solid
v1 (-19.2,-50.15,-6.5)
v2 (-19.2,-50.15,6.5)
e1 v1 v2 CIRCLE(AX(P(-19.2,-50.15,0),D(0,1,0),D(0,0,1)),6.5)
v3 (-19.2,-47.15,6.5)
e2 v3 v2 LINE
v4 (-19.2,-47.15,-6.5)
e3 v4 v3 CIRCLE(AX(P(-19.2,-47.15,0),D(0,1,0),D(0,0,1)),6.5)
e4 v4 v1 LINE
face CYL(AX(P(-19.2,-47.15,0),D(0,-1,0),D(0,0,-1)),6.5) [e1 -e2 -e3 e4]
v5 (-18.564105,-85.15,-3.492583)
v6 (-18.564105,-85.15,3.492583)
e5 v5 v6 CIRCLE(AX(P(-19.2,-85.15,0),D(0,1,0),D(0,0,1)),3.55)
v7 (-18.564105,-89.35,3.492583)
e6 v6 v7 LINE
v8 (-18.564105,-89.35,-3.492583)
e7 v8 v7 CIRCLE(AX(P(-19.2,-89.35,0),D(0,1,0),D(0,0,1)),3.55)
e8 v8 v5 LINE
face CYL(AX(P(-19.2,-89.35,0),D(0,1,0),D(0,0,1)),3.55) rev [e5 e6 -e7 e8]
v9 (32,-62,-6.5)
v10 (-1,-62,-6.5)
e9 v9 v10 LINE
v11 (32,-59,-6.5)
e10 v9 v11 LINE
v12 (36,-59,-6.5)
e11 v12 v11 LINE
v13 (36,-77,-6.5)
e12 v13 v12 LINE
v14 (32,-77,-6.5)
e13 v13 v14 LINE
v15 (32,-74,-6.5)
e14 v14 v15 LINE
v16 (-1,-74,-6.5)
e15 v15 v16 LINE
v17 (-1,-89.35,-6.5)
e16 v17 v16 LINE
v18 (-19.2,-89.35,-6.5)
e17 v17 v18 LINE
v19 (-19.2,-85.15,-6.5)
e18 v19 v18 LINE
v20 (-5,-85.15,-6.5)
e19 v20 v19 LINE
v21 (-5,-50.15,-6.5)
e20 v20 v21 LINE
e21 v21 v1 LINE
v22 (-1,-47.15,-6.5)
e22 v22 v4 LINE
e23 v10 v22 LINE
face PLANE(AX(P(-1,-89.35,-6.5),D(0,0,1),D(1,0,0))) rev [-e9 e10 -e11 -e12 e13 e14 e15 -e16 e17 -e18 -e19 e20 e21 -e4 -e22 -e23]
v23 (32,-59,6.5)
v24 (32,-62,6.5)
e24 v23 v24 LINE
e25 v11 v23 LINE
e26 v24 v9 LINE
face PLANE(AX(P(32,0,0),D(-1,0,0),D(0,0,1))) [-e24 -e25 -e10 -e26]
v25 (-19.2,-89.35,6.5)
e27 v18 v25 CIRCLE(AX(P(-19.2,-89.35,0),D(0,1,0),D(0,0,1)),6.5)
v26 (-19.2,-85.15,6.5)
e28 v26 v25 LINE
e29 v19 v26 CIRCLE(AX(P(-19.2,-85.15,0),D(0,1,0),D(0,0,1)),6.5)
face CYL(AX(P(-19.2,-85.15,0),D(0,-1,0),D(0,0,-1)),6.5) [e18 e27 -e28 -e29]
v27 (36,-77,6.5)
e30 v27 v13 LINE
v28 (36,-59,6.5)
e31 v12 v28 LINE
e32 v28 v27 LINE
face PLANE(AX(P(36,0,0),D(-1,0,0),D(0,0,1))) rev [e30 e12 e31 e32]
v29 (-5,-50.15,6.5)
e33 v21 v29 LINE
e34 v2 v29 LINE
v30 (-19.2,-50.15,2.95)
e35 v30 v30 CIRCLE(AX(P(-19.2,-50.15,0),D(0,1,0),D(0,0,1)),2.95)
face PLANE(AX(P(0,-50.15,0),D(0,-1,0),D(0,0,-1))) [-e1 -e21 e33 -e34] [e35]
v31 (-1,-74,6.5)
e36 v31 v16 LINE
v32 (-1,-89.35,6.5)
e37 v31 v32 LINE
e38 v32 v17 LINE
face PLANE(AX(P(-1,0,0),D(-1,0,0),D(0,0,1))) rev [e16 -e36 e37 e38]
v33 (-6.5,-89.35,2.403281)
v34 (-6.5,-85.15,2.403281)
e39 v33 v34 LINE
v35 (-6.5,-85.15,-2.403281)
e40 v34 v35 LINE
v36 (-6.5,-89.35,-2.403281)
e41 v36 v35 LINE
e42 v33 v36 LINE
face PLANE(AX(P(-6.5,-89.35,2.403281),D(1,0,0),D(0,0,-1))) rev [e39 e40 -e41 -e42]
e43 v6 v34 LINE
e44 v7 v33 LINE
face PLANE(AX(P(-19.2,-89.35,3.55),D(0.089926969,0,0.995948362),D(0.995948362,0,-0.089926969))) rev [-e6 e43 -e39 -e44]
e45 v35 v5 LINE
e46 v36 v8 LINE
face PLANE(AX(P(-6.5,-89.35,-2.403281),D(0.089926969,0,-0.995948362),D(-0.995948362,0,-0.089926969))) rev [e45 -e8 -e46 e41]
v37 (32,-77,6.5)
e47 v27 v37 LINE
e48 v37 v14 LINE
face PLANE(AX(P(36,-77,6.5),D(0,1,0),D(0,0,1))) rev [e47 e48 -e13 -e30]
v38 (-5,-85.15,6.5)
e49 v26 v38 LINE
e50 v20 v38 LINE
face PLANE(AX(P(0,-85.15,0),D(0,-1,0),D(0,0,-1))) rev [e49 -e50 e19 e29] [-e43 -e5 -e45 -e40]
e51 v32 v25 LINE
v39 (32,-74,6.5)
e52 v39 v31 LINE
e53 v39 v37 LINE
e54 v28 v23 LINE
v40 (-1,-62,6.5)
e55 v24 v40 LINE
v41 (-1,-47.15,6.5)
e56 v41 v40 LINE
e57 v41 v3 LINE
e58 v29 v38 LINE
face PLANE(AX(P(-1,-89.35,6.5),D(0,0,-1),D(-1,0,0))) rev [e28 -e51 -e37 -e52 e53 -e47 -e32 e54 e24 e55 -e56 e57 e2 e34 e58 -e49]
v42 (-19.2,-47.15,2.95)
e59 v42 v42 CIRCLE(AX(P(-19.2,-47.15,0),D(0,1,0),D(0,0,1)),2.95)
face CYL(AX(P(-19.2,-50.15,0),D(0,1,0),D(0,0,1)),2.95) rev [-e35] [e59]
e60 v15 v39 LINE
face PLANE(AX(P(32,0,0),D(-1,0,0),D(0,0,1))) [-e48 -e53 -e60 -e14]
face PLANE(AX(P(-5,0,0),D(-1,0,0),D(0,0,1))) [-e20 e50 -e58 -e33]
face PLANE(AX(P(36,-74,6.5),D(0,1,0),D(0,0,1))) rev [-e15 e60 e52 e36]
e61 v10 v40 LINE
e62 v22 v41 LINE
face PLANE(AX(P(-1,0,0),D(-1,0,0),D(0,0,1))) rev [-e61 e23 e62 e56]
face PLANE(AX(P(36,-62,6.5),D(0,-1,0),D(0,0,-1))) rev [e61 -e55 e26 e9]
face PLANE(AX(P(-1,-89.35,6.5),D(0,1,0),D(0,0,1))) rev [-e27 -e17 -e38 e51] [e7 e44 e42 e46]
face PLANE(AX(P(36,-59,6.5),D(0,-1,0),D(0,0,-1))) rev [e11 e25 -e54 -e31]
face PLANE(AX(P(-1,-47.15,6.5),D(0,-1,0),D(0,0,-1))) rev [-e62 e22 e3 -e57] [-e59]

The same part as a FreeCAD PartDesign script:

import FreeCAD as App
import Part
import Sketcher

V = App.Vector


def add_polygon(sketch, points):
    """Adds a closed chain of lines whose ends are joined by coincident constraints."""
    first, n = sketch.GeometryCount, len(points)
    for a, b in zip(points, points[1:] + points[:1]):
        sketch.addGeometry(Part.LineSegment(App.Vector(*a, 0), App.Vector(*b, 0)), False)
    for i in range(n):
        sketch.addConstraint(Sketcher.Constraint("Coincident", first + i, 2, first + (i + 1) % n, 1))

doc = App.newDocument("Part")
body = doc.addObject("PartDesign::Body", "Body")

# Sketch on YZ plane
sketch1 = doc.addObject("Sketcher::SketchObject", "Sketch")
body.addObject(sketch1)
sketch1.AttachmentSupport = (doc.YZ_Plane, [""])
sketch1.MapMode = "FlatFace"
sketch1.AttachmentOffset = App.Placement(V(0, 0, -3), App.Rotation())
add_polygon(sketch1, [(-47, 6), (-89, 6), (-89, -6), (-47, -6)])  # lines 0-3
sketch1.addConstraint(Sketcher.Constraint("Horizontal", 0))
sketch1.addConstraint(Sketcher.Constraint("Vertical", 1))
sketch1.addConstraint(Sketcher.Constraint("Horizontal", 2))
sketch1.addConstraint(Sketcher.Constraint("Vertical", 3))
sketch1.addConstraint(Sketcher.Constraint("DistanceY", 1, 2, 1, 1, 13.0))
sketch1.addConstraint(Sketcher.Constraint("DistanceX", 0, 2, 0, 1, 42.2))
sketch1.addConstraint(Sketcher.Constraint("DistanceY", -1, 1, 0, 2, 6.5))
sketch1.addConstraint(Sketcher.Constraint("DistanceX", 0, 2, -1, 1, 89.35))
pad1 = doc.addObject("PartDesign::Pad", "Pad")
body.addObject(pad1)
pad1.Profile = sketch1
pad1.Length = 4
pad1.Midplane = True
body2 = doc.addObject("PartDesign::Body", "Body001")

# Sketch on XZ plane
sketch2 = doc.addObject("Sketcher::SketchObject", "Sketch001")
body2.addObject(sketch2)
sketch2.AttachmentSupport = (doc.getObject("XZ_Plane001"), [""])
sketch2.MapMode = "FlatFace"
sketch2.AttachmentOffset = App.Placement(V(0, 0, 87.25), App.Rotation())
sketch2.addGeometry(Part.Circle(V(-19, 0, 0), V(0, 0, 1), 6), False)
sketch2.addConstraint(Sketcher.Constraint("PointOnObject", 0, 3, -1))
sketch2.addConstraint(Sketcher.Constraint("Diameter", 0, 13.0))
sketch2.addConstraint(Sketcher.Constraint("DistanceX", 0, 3, -1, 1, 19.2))
pad2 = doc.addObject("PartDesign::Pad", "Pad001")
body2.addObject(pad2)
pad2.Profile = sketch2
pad2.Length = 4.2
pad2.Midplane = True
body.AllowCompound = True
doc.recompute()

boolean = doc.addObject("PartDesign::Boolean", "Boolean")
body.addObject(boolean)
boolean.Type = "Fuse"
boolean.addObjects([body2])

# Sketch on XZ plane
sketch3 = doc.addObject("Sketcher::SketchObject", "Sketch002")
body.addObject(sketch3)
sketch3.AttachmentSupport = (doc.XZ_Plane, [""])
sketch3.MapMode = "FlatFace"
sketch3.AttachmentOffset = App.Placement(V(0, 0, 87.25), App.Rotation())
add_polygon(sketch3, [(-19, -6), (-19, 6), (-1, 6), (-1, -6)])  # lines 0-3
sketch3.addConstraint(Sketcher.Constraint("Vertical", 0))
sketch3.addConstraint(Sketcher.Constraint("Horizontal", 1))
sketch3.addConstraint(Sketcher.Constraint("Vertical", 2))
sketch3.addConstraint(Sketcher.Constraint("Horizontal", 3))
sketch3.addConstraint(Sketcher.Constraint("DistanceY", 0, 1, 0, 2, 13.0))
sketch3.addConstraint(Sketcher.Constraint("DistanceX", 1, 1, 1, 2, 18.2))
sketch3.addConstraint(Sketcher.Constraint("DistanceX", 1, 2, -1, 1, 1.0))
sketch3.addConstraint(Sketcher.Constraint("DistanceY", -1, 1, 0, 2, 6.5))
pad3 = doc.addObject("PartDesign::Pad", "Pad002")
body.addObject(pad3)
pad3.Profile = sketch3
pad3.Length = 4.2
pad3.Midplane = True

# Sketch on XZ plane
sketch4 = doc.addObject("Sketcher::SketchObject", "Sketch003")
body.addObject(sketch4)
sketch4.AttachmentSupport = (doc.XZ_Plane, [""])
sketch4.MapMode = "FlatFace"
sketch4.AttachmentOffset = App.Placement(V(0, 0, 87.25), App.Rotation())
sketch4.addGeometry(Part.Circle(V(-19.2, 0, 0), V(0, 0, 1), 3.5), False)
sketch4.addConstraint(Sketcher.Constraint("PointOnObject", 0, 3, -1))
sketch4.addConstraint(Sketcher.Constraint("Diameter", 0, 7.1))
sketch4.addConstraint(Sketcher.Constraint("DistanceX", 0, 3, -1, 1, 19.2))
pocket1 = doc.addObject("PartDesign::Pocket", "Pocket")
body.addObject(pocket1)
pocket1.Profile = sketch4
pocket1.Length = 4.2
pocket1.Midplane = True

# Sketch on XZ plane
sketch5 = doc.addObject("Sketcher::SketchObject", "Sketch004")
body.addObject(sketch5)
sketch5.AttachmentSupport = (doc.XZ_Plane, [""])
sketch5.MapMode = "FlatFace"
sketch5.AttachmentOffset = App.Placement(V(0, 0, 87.25), App.Rotation())
add_polygon(sketch5, [(-19.2, 3.5), (-6.5, 2.4), (-6.5, -2.4), (-19.2, -3.5)])  # lines 0-3
sketch5.addConstraint(Sketcher.Constraint("Vertical", 1))
sketch5.addConstraint(Sketcher.Constraint("Vertical", 3))
sketch5.addConstraint(Sketcher.Constraint("Equal", 0, 2))
sketch5.addConstraint(Sketcher.Constraint("DistanceY", 3, 1, 3, 2, 7.1))
sketch5.addConstraint(Sketcher.Constraint("DistanceX", 0, 2, -1, 1, 6.5))
sketch5.addConstraint(Sketcher.Constraint("DistanceX", 2, 2, -1, 1, 19.2))
sketch5.addConstraint(Sketcher.Constraint("DistanceY", 2, 2, -1, 1, 3.55))
sketch5.addConstraint(Sketcher.Constraint("DistanceY", 1, 2, 1, 1, 4.806563))
pocket2 = doc.addObject("PartDesign::Pocket", "Pocket001")
body.addObject(pocket2)
pocket2.Profile = sketch5
pocket2.Length = 4.2
pocket2.Midplane = True
body3 = doc.addObject("PartDesign::Body", "Body002")

# Sketch on XZ plane
sketch6 = doc.addObject("Sketcher::SketchObject", "Sketch005")
body3.addObject(sketch6)
sketch6.AttachmentSupport = (doc.getObject("XZ_Plane002"), [""])
sketch6.MapMode = "FlatFace"
sketch6.AttachmentOffset = App.Placement(V(0, 0, 48.65), App.Rotation())
sketch6.addGeometry(Part.Circle(V(-19, 0, 0), V(0, 0, 1), 6), False)
sketch6.addConstraint(Sketcher.Constraint("PointOnObject", 0, 3, -1))
sketch6.addConstraint(Sketcher.Constraint("Diameter", 0, 13.0))
sketch6.addConstraint(Sketcher.Constraint("DistanceX", 0, 3, -1, 1, 19.2))
pad4 = doc.addObject("PartDesign::Pad", "Pad003")
body3.addObject(pad4)
pad4.Profile = sketch6
pad4.Length = 3
pad4.Midplane = True
body.AllowCompound = True
doc.recompute()

boolean2 = doc.addObject("PartDesign::Boolean", "Boolean001")
body.addObject(boolean2)
boolean2.Type = "Fuse"
boolean2.addObjects([body3])

# Sketch on XZ plane
sketch7 = doc.addObject("Sketcher::SketchObject", "Sketch006")
body.addObject(sketch7)
sketch7.AttachmentSupport = (doc.XZ_Plane, [""])
sketch7.MapMode = "FlatFace"
sketch7.AttachmentOffset = App.Placement(V(0, 0, 48.65), App.Rotation())
add_polygon(sketch7, [(-19, -6), (-19, 6), (-1, 6), (-1, -6)])  # lines 0-3
sketch7.addConstraint(Sketcher.Constraint("Vertical", 0))
sketch7.addConstraint(Sketcher.Constraint("Horizontal", 1))
sketch7.addConstraint(Sketcher.Constraint("Vertical", 2))
sketch7.addConstraint(Sketcher.Constraint("Horizontal", 3))
sketch7.addConstraint(Sketcher.Constraint("DistanceY", 0, 1, 0, 2, 13.0))
sketch7.addConstraint(Sketcher.Constraint("DistanceX", 1, 1, 1, 2, 18.2))
sketch7.addConstraint(Sketcher.Constraint("DistanceX", 1, 2, -1, 1, 1.0))
sketch7.addConstraint(Sketcher.Constraint("DistanceY", -1, 1, 0, 2, 6.5))
pad5 = doc.addObject("PartDesign::Pad", "Pad004")
body.addObject(pad5)
pad5.Profile = sketch7
pad5.Length = 3
pad5.Midplane = True

# Sketch on XZ plane
sketch8 = doc.addObject("Sketcher::SketchObject", "Sketch007")
body.addObject(sketch8)
sketch8.AttachmentSupport = (doc.XZ_Plane, [""])
sketch8.MapMode = "FlatFace"
sketch8.AttachmentOffset = App.Placement(V(0, 0, 48.65), App.Rotation())
sketch8.addGeometry(Part.Circle(V(-19.2, 0, 0), V(0, 0, 1), 3), False)
sketch8.addConstraint(Sketcher.Constraint("PointOnObject", 0, 3, -1))
sketch8.addConstraint(Sketcher.Constraint("Diameter", 0, 5.9))
sketch8.addConstraint(Sketcher.Constraint("DistanceX", 0, 3, -1, 1, 19.2))
pocket3 = doc.addObject("PartDesign::Pocket", "Pocket002")
body.addObject(pocket3)
pocket3.Profile = sketch8
pocket3.Length = 3
pocket3.Midplane = True

# Sketch on YZ plane
sketch9 = doc.addObject("Sketcher::SketchObject", "Sketch008")
body.addObject(sketch9)
sketch9.AttachmentSupport = (doc.YZ_Plane, [""])
sketch9.MapMode = "FlatFace"
sketch9.AttachmentOffset = App.Placement(V(0, 0, 17), App.Rotation())
add_polygon(sketch9, [(-62, 6), (-74, 6), (-74, -6), (-62, -6)])  # lines 0-3
sketch9.addConstraint(Sketcher.Constraint("Horizontal", 0))
sketch9.addConstraint(Sketcher.Constraint("Vertical", 1))
sketch9.addConstraint(Sketcher.Constraint("Horizontal", 2))
sketch9.addConstraint(Sketcher.Constraint("Vertical", 3))
sketch9.addConstraint(Sketcher.Constraint("DistanceX", 0, 2, 0, 1, 12.0))
sketch9.addConstraint(Sketcher.Constraint("DistanceY", 1, 2, 1, 1, 13.0))
sketch9.addConstraint(Sketcher.Constraint("DistanceX", 0, 2, -1, 1, 74.0))
sketch9.addConstraint(Sketcher.Constraint("DistanceY", -1, 1, 0, 2, 6.5))
pad6 = doc.addObject("PartDesign::Pad", "Pad005")
body.addObject(pad6)
pad6.Profile = sketch9
pad6.Length = 38
pad6.Midplane = True

# Sketch on YZ plane
sketch10 = doc.addObject("Sketcher::SketchObject", "Sketch009")
body.addObject(sketch10)
sketch10.AttachmentSupport = (doc.YZ_Plane, [""])
sketch10.MapMode = "FlatFace"
sketch10.AttachmentOffset = App.Placement(V(0, 0, 34), App.Rotation())
add_polygon(sketch10, [(-59, 6), (-77, 6), (-77, -6), (-59, -6)])  # lines 0-3
sketch10.addConstraint(Sketcher.Constraint("Horizontal", 0))
sketch10.addConstraint(Sketcher.Constraint("Vertical", 1))
sketch10.addConstraint(Sketcher.Constraint("Horizontal", 2))
sketch10.addConstraint(Sketcher.Constraint("Vertical", 3))
sketch10.addConstraint(Sketcher.Constraint("DistanceX", 0, 2, 0, 1, 18.0))
sketch10.addConstraint(Sketcher.Constraint("DistanceY", 1, 2, 1, 1, 13.0))
sketch10.addConstraint(Sketcher.Constraint("DistanceX", 0, 2, -1, 1, 77.0))
sketch10.addConstraint(Sketcher.Constraint("DistanceY", -1, 1, 0, 2, 6.5))
pad7 = doc.addObject("PartDesign::Pad", "Pad006")
body.addObject(pad7)
pad7.Profile = sketch10
pad7.Length = 4
pad7.Midplane = True

doc.recompute()
